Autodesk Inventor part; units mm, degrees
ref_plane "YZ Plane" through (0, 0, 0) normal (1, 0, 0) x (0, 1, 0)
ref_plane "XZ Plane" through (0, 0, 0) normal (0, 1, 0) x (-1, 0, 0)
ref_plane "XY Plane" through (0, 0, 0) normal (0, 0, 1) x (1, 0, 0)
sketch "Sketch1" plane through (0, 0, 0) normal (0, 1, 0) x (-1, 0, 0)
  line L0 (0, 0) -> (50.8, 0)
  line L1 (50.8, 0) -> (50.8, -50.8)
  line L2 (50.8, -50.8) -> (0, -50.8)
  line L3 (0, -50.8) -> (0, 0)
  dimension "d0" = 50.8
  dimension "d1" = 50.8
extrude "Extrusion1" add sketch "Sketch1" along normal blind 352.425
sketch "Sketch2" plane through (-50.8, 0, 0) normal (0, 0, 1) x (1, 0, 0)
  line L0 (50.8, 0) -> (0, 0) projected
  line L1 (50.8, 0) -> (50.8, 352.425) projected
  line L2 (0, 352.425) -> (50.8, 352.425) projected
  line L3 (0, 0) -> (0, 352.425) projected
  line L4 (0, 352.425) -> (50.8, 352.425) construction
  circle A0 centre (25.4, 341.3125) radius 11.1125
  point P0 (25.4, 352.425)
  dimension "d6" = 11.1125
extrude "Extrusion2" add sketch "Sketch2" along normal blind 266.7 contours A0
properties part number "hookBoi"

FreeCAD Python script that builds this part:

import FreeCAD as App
import Part
import Sketcher
Q = App.Units.Quantity


def add_polygon(sketch, points):
    """Adds a closed chain of lines whose ends are joined by coincident constraints."""
    first, n = sketch.GeometryCount, len(points)
    for a, b in zip(points, points[1:] + points[:1]):
        sketch.addGeometry(Part.LineSegment(App.Vector(*a, 0), App.Vector(*b, 0)), False)
    for i in range(n):
        sketch.addConstraint(Sketcher.Constraint("Coincident", first + i, 2, first + (i + 1) % n, 1))

doc = App.newDocument("Part")
body = doc.addObject("PartDesign::Body", "Body")

# Sketch on XZ plane
sketch1 = body.newObject("Sketcher::SketchObject", "Sketch")
sketch1.AttachmentSupport = (doc.getObject("XZ_Plane"), [""])
sketch1.MapMode = "FlatFace"
add_polygon(sketch1, [(-50.8, 0), (0, 0), (0, -50.8), (-50.8, -50.8)])  # lines 0-3
sketch1.addConstraint([
    Sketcher.Constraint("Horizontal", 0),
    Sketcher.Constraint("Vertical", 1),
    Sketcher.Constraint("Horizontal", 2),
    Sketcher.Constraint("Vertical", 3),
    Sketcher.Constraint("Coincident", 0, 2, -1, 1),
    Sketcher.Constraint("Equal", 2, 1),
    Sketcher.Constraint("DistanceX", 0, 1, 0, 2, Q("2 in")),
])
pad1 = body.newObject("PartDesign::Pad", "Pad")
pad1.Profile = sketch1
pad1.Length = Q("13.875 in")
pad1.Reversed = True

# Sketch on XY plane
sketch2 = body.newObject("Sketcher::SketchObject", "Sketch001")
sketch2.AttachmentSupport = (doc.getObject("XY_Plane"), [""])
sketch2.MapMode = "FlatFace"
sketch2.addGeometry(Part.Circle(App.Vector(-25.4, 341.3125, 0), App.Vector(0, 0, 1), 11.1125), False)
sketch2.addConstraint([
    Sketcher.Constraint("Diameter", 0, Q("0.875 in")),
    Sketcher.Constraint("DistanceX", 0, 3, -1, 1, Q("1 in")),
    Sketcher.Constraint("DistanceY", -1, 1, 0, 3, Q("13.4375 in")),
])
pad2 = body.newObject("PartDesign::Pad", "Pad001")
pad2.Profile = sketch2
pad2.Length = Q("10.5 in")

doc.recompute()
